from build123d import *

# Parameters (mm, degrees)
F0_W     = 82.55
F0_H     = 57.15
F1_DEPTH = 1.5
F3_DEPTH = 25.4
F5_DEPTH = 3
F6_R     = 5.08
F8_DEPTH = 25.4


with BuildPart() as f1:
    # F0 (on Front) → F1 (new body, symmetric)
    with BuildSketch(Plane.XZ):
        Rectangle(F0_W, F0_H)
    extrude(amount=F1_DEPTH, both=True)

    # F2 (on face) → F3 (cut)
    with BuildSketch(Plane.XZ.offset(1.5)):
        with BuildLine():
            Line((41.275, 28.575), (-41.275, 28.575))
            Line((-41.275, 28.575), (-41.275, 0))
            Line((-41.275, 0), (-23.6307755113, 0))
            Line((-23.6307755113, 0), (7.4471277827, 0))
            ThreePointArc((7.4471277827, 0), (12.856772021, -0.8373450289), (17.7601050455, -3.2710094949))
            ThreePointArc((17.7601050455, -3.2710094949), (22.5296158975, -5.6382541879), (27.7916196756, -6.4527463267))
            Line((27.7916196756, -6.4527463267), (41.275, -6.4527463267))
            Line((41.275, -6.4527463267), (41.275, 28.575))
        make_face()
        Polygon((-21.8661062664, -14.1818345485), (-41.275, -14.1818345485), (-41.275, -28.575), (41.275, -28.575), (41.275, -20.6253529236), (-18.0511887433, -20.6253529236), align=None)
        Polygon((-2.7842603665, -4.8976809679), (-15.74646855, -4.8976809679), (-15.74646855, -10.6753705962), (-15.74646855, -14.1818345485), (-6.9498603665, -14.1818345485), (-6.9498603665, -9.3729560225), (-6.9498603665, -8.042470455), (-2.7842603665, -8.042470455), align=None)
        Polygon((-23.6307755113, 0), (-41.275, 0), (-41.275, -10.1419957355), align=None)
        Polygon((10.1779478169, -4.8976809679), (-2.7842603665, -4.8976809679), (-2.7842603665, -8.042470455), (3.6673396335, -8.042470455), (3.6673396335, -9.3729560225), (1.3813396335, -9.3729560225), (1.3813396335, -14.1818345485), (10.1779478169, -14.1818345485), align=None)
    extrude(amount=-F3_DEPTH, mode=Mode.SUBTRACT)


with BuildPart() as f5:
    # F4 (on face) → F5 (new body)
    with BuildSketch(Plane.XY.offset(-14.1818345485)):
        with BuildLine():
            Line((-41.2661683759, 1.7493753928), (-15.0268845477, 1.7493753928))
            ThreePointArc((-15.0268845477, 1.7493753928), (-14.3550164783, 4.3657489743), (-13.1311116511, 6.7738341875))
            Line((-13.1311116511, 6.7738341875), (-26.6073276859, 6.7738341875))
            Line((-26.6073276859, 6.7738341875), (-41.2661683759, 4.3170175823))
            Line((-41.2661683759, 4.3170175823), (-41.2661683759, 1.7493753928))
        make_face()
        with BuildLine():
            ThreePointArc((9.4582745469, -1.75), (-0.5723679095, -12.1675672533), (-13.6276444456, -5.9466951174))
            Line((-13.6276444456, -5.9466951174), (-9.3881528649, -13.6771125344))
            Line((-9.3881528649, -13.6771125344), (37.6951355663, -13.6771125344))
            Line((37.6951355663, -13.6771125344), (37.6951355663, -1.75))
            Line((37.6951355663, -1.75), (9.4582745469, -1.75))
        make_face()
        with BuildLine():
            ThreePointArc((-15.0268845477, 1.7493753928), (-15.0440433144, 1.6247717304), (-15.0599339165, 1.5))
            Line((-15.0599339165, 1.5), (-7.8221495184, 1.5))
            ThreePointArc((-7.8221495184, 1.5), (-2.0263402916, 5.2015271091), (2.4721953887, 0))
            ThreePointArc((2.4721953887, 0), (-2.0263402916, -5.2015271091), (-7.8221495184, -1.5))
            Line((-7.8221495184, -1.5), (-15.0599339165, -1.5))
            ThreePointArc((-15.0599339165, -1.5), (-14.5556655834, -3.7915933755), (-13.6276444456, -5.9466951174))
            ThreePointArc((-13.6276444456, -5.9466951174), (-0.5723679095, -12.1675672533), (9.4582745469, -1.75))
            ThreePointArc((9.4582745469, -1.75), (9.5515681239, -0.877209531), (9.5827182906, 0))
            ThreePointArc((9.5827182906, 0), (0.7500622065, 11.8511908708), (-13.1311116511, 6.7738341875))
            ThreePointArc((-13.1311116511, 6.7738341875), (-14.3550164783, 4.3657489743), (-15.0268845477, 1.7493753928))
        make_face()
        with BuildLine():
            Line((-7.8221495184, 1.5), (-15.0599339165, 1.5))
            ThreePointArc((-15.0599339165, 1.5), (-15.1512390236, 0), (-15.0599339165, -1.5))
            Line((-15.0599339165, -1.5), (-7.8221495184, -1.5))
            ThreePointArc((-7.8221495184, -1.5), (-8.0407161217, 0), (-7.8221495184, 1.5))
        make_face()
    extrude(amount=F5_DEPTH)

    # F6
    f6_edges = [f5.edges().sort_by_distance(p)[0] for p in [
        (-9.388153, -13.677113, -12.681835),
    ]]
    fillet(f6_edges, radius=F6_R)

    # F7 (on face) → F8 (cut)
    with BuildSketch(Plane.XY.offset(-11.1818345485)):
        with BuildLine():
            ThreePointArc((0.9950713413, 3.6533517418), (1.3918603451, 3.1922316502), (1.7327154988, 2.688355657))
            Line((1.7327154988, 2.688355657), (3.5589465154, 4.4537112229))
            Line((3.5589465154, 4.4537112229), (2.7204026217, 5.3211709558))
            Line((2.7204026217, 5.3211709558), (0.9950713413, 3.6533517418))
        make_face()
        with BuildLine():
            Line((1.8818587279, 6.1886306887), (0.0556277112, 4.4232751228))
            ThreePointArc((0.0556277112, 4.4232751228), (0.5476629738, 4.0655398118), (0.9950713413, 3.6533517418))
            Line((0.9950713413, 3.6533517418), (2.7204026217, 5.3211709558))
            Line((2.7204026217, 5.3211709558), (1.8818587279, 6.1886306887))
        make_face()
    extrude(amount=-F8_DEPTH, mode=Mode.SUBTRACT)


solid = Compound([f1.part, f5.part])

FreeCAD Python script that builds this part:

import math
import FreeCAD as App
import Part
import Sketcher
Q = App.Units.Quantity


def edges_at(feature, points):
    """Names of the edges that pass closest to the given points."""
    edges = feature.Shape.Edges
    near = lambda p: min(range(len(edges)), key=lambda i: edges[i].distToShape(Part.Vertex(*p))[0])
    return sorted({f"Edge{near(p) + 1}" for p in points})


def add_polygon(sketch, points):
    """Adds a closed chain of lines whose ends are joined by coincident constraints."""
    first, n = sketch.GeometryCount, len(points)
    for a, b in zip(points, points[1:] + points[:1]):
        sketch.addGeometry(Part.LineSegment(App.Vector(*a, 0), App.Vector(*b, 0)), False)
    for i in range(n):
        sketch.addConstraint(Sketcher.Constraint("Coincident", first + i, 2, first + (i + 1) % n, 1))

doc = App.newDocument("Part")
body = doc.addObject("PartDesign::Body", "Body")

# Sketch on XZ plane
sketch1 = body.newObject("Sketcher::SketchObject", "Sketch")
sketch1.AttachmentSupport = (doc.getObject("XZ_Plane"), [""])
sketch1.MapMode = "FlatFace"
add_polygon(sketch1, [(-41.275, 28.575), (-41.275, -28.575), (41.275, -28.575), (41.275, 28.575)])  # lines 0-3
sketch1.addConstraint([
    Sketcher.Constraint("Vertical", 0),
    Sketcher.Constraint("Horizontal", 1),
    Sketcher.Constraint("Vertical", 2),
    Sketcher.Constraint("Horizontal", 3),
    Sketcher.Constraint("Symmetric", 0, 2, 2, 2, -1, 1),
    Sketcher.Constraint("DistanceX", 1, 1, 1, 2, Q("3.25 in")),
    Sketcher.Constraint("DistanceY", 0, 2, 0, 1, Q("2.25 in")),
])
pad1 = body.newObject("PartDesign::Pad", "Pad")
pad1.Profile = sketch1
pad1.Length = 3
pad1.Midplane = True

# Sketch on XZ plane
sketch2 = body.newObject("Sketcher::SketchObject", "Sketch001")
sketch2.AttachmentSupport = (doc.getObject("XZ_Plane"), [""])
sketch2.MapMode = "FlatFace"
sketch2.AttachmentOffset = App.Placement(App.Vector(0, 0, 1.5), App.Rotation())
sketch2.addGeometry(Part.LineSegment(App.Vector(41.275, 28.575, 0), App.Vector(-41.275, 28.575, 0)), False)  # 0
sketch2.addGeometry(Part.LineSegment(App.Vector(-41.275, 28.575, 0), App.Vector(-41.275, -10.141996, 0)), False)  # 1
sketch2.addGeometry(Part.LineSegment(App.Vector(-41.275, -10.141996, 0), App.Vector(-23.630776, 0, 0)), False)  # 2
sketch2.addGeometry(Part.LineSegment(App.Vector(-23.630776, 0, 0), App.Vector(7.447128, 0, 0)), False)  # 3
sketch2.addGeometry(Part.ArcOfCircle(Part.Circle(App.Vector(7.447128, -17.8931, 0), App.Vector(0, 0, 1), 17.8931), math.radians(54.80464), math.radians(90)), False)  # 4
sketch2.addGeometry(Part.ArcOfCircle(Part.Circle(App.Vector(27.79162, 10.952014, 0), App.Vector(0, 0, 1), 17.40476), math.radians(-125.19536), math.radians(-90)), False)  # 5
sketch2.addGeometry(Part.LineSegment(App.Vector(27.79162, -6.452746, 0), App.Vector(41.275, -6.452746, 0)), False)  # 6
sketch2.addGeometry(Part.LineSegment(App.Vector(41.275, -6.452746, 0), App.Vector(41.275, 28.575, 0)), False)  # 7
add_polygon(sketch2, [(-21.866106, -14.181835), (-41.275, -14.181835), (-41.275, -28.575), (41.275, -28.575), (41.275, -20.625353), (-18.051189, -20.625353)])  # lines 8-13
add_polygon(sketch2, [(-15.746469, -4.897681), (-15.746469, -14.181835), (-6.94986, -14.181835), (-6.94986, -8.04247), (3.66734, -8.04247), (3.66734, -9.372956), (1.38134, -9.372956), (1.38134, -14.181835), (10.177948, -14.181835), (10.177948, -4.897681)])  # lines 14-23
sketch2.addConstraint([
    Sketcher.Constraint("Coincident", 0, 2, 1, 1),
    Sketcher.Constraint("Coincident", 1, 2, 2, 1),
    Sketcher.Constraint("Coincident", 2, 2, 3, 1),
    Sketcher.Constraint("Tangent", 3, 2, 4, 2),
    Sketcher.Constraint("Tangent", 4, 1, 5, 1),
    Sketcher.Constraint("Tangent", 5, 2, 6, 1),
    Sketcher.Constraint("Coincident", 6, 2, 7, 1),
    Sketcher.Constraint("Coincident", 7, 2, 0, 1),
    Sketcher.Constraint("Horizontal", 0),
    Sketcher.Constraint("Vertical", 1),
    Sketcher.Constraint("Horizontal", 3),
    Sketcher.Constraint("Horizontal", 6),
    Sketcher.Constraint("Vertical", 7),
    Sketcher.Constraint("Horizontal", 8),
    Sketcher.Constraint("Vertical", 9),
    Sketcher.Constraint("Horizontal", 10),
    Sketcher.Constraint("Vertical", 11),
    Sketcher.Constraint("Horizontal", 12),
    Sketcher.Constraint("Vertical", 14),
    Sketcher.Constraint("Horizontal", 15),
    Sketcher.Constraint("Vertical", 16),
    Sketcher.Constraint("Horizontal", 17),
    Sketcher.Constraint("Vertical", 18),
    Sketcher.Constraint("Horizontal", 19),
    Sketcher.Constraint("Vertical", 20),
    Sketcher.Constraint("Horizontal", 21),
    Sketcher.Constraint("Vertical", 22),
    Sketcher.Constraint("Horizontal", 23),
    Sketcher.Constraint("Symmetric", 7, 2, 9, 2, -1, 1),
    Sketcher.Constraint("PointOnObject", 2, 2, -1),
    Sketcher.Constraint("Horizontal", 13, 2, 14, 2),
    Sketcher.Constraint("Horizontal", 15, 2, 20, 2),
    Sketcher.Constraint("Vertical", 1, 2, 8, 2),
    Sketcher.Constraint("Vertical", 7, 2, 10, 2),
    Sketcher.Constraint("Equal", 15, 21),
    Sketcher.Constraint("DistanceX", 0, 2, 0, 1, Q("3.25 in")),
    Sketcher.Constraint("DistanceX", 19, 2, 19, 1, Q("0.09 in")),
    Sketcher.Constraint("DistanceX", 17, 1, 17, 2, Q("0.418 in")),
    Sketcher.Constraint("Radius", 4, 17.8931),
    Sketcher.Constraint("DistanceY", -1, 1, 0, 2, Q("1.125 in")),
    Sketcher.Constraint("Radius", 5, 17.40476),
    Sketcher.Constraint("DistanceX", 6, 1, 6, 2, 13.48338),
    Sketcher.Constraint("DistanceX", 12, 2, 12, 1, 59.326189),
    Sketcher.Constraint("DistanceX", 15, 1, 15, 2, 8.796608),
    Sketcher.Constraint("DistanceY", 20, 2, 20, 1, 4.808879),
    Sketcher.Constraint("Distance", 2, 20.351382),
    Sketcher.Constraint("Distance", 13, 7.488159),
    Sketcher.Constraint("DistanceX", 3, 1, 3, 2, 31.077903),
    Sketcher.Constraint("DistanceX", 8, 2, 8, 1, 19.408894),
    Sketcher.Constraint("DistanceY", 1, 2, 1, 1, 38.716996),
    Sketcher.Constraint("DistanceY", 9, 2, 9, 1, 14.393165),
    Sketcher.Constraint("DistanceY", 14, 2, 14, 1, 9.284154),
    Sketcher.Constraint("DistanceY", 16, 1, 16, 2, 6.139364),
    Sketcher.Constraint("DistanceX", 14, 2, -1, 1, 15.746469),
])
pocket1 = body.newObject("PartDesign::Pocket", "Pocket")
pocket1.Profile = sketch2
pocket1.Length = Q("1 in")
body2 = doc.addObject("PartDesign::Body", "Body001")

# Sketch on XY plane
sketch3 = body2.newObject("Sketcher::SketchObject", "Sketch002")
sketch3.AttachmentSupport = (doc.getObject("XY_Plane001"), [""])
sketch3.MapMode = "FlatFace"
sketch3.AttachmentOffset = App.Placement(App.Vector(0, 0, -14.181835), App.Rotation())
sketch3.addGeometry([
    Part.LineSegment(App.Vector(-41.266168, 1.749375, 0), App.Vector(-15.026885, 1.749375, 0)),  # 0
    Part.ArcOfCircle(Part.Circle(App.Vector(-2.78426, 0, 0), App.Vector(0, 0, 1), 12.366979), math.radians(171.86793), math.radians(173.033399)),  # 1
    Part.ArcOfCircle(Part.Circle(App.Vector(-2.78426, 0, 0), App.Vector(0, 0, 1), 12.366979), math.radians(173.033399), math.radians(186.966601)),  # 2
    Part.ArcOfCircle(Part.Circle(App.Vector(-2.78426, 0, 0), App.Vector(0, 0, 1), 12.366979), math.radians(-173.033399), math.radians(-151.258892)),  # 3
    Part.LineSegment(App.Vector(-13.627644, -5.946695, 0), App.Vector(-9.388153, -13.677113, 0)),  # 4
    Part.LineSegment(App.Vector(-9.388153, -13.677113, 0), App.Vector(37.695136, -13.677113, 0)),  # 5
    Part.LineSegment(App.Vector(37.695136, -13.677113, 0), App.Vector(37.695136, -1.75, 0)),  # 6
    Part.LineSegment(App.Vector(37.695136, -1.75, 0), App.Vector(9.458275, -1.75, 0)),  # 7
    Part.ArcOfCircle(Part.Circle(App.Vector(-2.78426, 0, 0), App.Vector(0, 0, 1), 12.366979), math.radians(-8.134993), math.radians(0)),  # 8
    Part.ArcOfCircle(Part.Circle(App.Vector(-2.78426, 0, 0), App.Vector(0, 0, 1), 12.366979), math.radians(0), math.radians(146.788198)),  # 9
    Part.LineSegment(App.Vector(-13.131112, 6.773834, 0), App.Vector(-26.607328, 6.773834, 0)),  # 10
    Part.LineSegment(App.Vector(-26.607328, 6.773834, 0), App.Vector(-41.266168, 4.317018, 0)),  # 11
    Part.LineSegment(App.Vector(-41.266168, 4.317018, 0), App.Vector(-41.266168, 1.749375, 0)),  # 12
    Part.ArcOfCircle(Part.Circle(App.Vector(-2.78426, 0, 0), App.Vector(0, 0, 1), 5.256456), math.radians(0), math.radians(163.419429)),  # 13
    Part.ArcOfCircle(Part.Circle(App.Vector(-2.78426, 0, 0), App.Vector(0, 0, 1), 5.256456), math.radians(-163.419429), math.radians(0)),  # 14
    Part.ArcOfCircle(Part.Circle(App.Vector(-2.78426, 0, 0), App.Vector(0, 0, 1), 5.256456), math.radians(163.419429), math.radians(196.580571)),  # 15
], False)
sketch3.addConstraint([
    Sketcher.Constraint("Coincident", 0, 2, 1, 1),
    Sketcher.Constraint("Tangent", 1, 2, 2, 1),
    Sketcher.Constraint("Tangent", 2, 2, 3, 1),
    Sketcher.Constraint("Tangent", 3, 2, 4, 1),
    Sketcher.Constraint("Coincident", 4, 2, 5, 1),
    Sketcher.Constraint("Coincident", 5, 2, 6, 1),
    Sketcher.Constraint("Coincident", 6, 2, 7, 1),
    Sketcher.Constraint("Coincident", 7, 2, 8, 1),
    Sketcher.Constraint("Tangent", 8, 2, 9, 1),
    Sketcher.Constraint("Coincident", 9, 2, 10, 1),
    Sketcher.Constraint("Coincident", 10, 2, 11, 1),
    Sketcher.Constraint("Coincident", 11, 2, 12, 1),
    Sketcher.Constraint("Coincident", 12, 2, 0, 1),
    Sketcher.Constraint("Tangent", 13, 1, 14, 2),
    Sketcher.Constraint("Tangent", 14, 1, 15, 2),
    Sketcher.Constraint("Tangent", 15, 1, 13, 2),
    Sketcher.Constraint("Horizontal", 0),
    Sketcher.Constraint("Horizontal", 5),
    Sketcher.Constraint("Vertical", 6),
    Sketcher.Constraint("Horizontal", 7),
    Sketcher.Constraint("Horizontal", 10),
    Sketcher.Constraint("Vertical", 12),
    Sketcher.Constraint("Coincident", 3, 3, 1, 3),
    Sketcher.Constraint("Coincident", 8, 3, 1, 3),
    Sketcher.Constraint("Coincident", 13, 3, 1, 3),
    Sketcher.Constraint("Equal", 3, 8),
    Sketcher.Constraint("Equal", 8, 9),
    Sketcher.Constraint("Symmetric", 1, 2, 2, 2, -1),
    Sketcher.Constraint("PointOnObject", 8, 2, -1),
    Sketcher.Constraint("PointOnObject", 13, 1, -1),
    Sketcher.Constraint("Horizontal", 2, 2, 14, 1),
    Sketcher.Constraint("Horizontal", 1, 2, 15, 1),
    Sketcher.Constraint("Radius", 1, 12.366979),
    Sketcher.Constraint("Radius", 13, 5.256456),
    Sketcher.Constraint("DistanceX", 5, 1, 5, 2, 47.083288),
    Sketcher.Constraint("DistanceX", 7, 2, 7, 1, 28.236861),
    Sketcher.Constraint("DistanceY", -1, 1, 1, 2, 1.5),
    Sketcher.Constraint("DistanceY", 6, 2, -1, 1, 1.75),
    Sketcher.Constraint("Distance", 4, 8.816612),
    Sketcher.Constraint("DistanceX", 0, 1, 0, 2, 26.239284),
    Sketcher.Constraint("DistanceX", 10, 2, 10, 1, 13.476216),
    Sketcher.Constraint("DistanceY", 12, 2, 12, 1, 2.567642),
    Sketcher.Constraint("DistanceX", 1, 3, -1, 1, 2.78426),
    Sketcher.Constraint("DistanceX", 9, 2, -1, 1, 13.131112),
    Sketcher.Constraint("DistanceX", 11, 2, -1, 1, 41.266168),
])
pad2 = body2.newObject("PartDesign::Pad", "Pad001")
pad2.Profile = sketch3
pad2.Length = 3
doc.recompute()

fillet = body2.newObject("PartDesign::Fillet", "Fillet")
fillet.Base = (pad2, edges_at(pad2, [(-9.388, -13.677, -12.682)]))
fillet.Radius = Q("0.2 in")

# Sketch on XY plane
sketch4 = body2.newObject("Sketcher::SketchObject", "Sketch003")
sketch4.AttachmentSupport = (doc.getObject("XY_Plane001"), [""])
sketch4.MapMode = "FlatFace"
sketch4.AttachmentOffset = App.Placement(App.Vector(0, 0, -11.181835), App.Rotation())
sketch4.addGeometry([
    Part.LineSegment(App.Vector(1.732715, 2.688356, 0), App.Vector(3.558947, 4.453711, 0)),  # 0
    Part.LineSegment(App.Vector(3.558947, 4.453711, 0), App.Vector(2.720403, 5.321171, 0)),  # 1
    Part.LineSegment(App.Vector(2.720403, 5.321171, 0), App.Vector(1.881859, 6.188631, 0)),  # 2
    Part.LineSegment(App.Vector(1.881859, 6.188631, 0), App.Vector(0.055628, 4.423275, 0)),  # 3
    Part.ArcOfCircle(Part.Circle(App.Vector(-2.78426, 0, 0), App.Vector(0, 0, 1), 5.256456), math.radians(30.759718), math.radians(57.298203)),  # 4
], False)
sketch4.addConstraint([
    Sketcher.Constraint("Coincident", 0, 2, 1, 1),
    Sketcher.Constraint("Coincident", 1, 2, 2, 1),
    Sketcher.Constraint("Coincident", 2, 2, 3, 1),
    Sketcher.Constraint("Coincident", 3, 2, 4, 2),
    Sketcher.Constraint("Coincident", 4, 1, 0, 1),
    Sketcher.Constraint("PointOnObject", 4, 3, -1),
    Sketcher.Constraint("Perpendicular", 0, 1),
    Sketcher.Constraint("Parallel", 1, 2),
    Sketcher.Constraint("Perpendicular", 2, 3),
    Sketcher.Constraint("Equal", 1, 2),
    Sketcher.Constraint("Equal", 0, 3),
    Sketcher.Constraint("Distance", 0, Q("0.1 in")),
    Sketcher.Constraint("Distance", 1, Q("0.0475 in")),
    Sketcher.Constraint("Radius", 4, 5.256456),
    Sketcher.Constraint("DistanceX", 4, 3, -1, 1, 2.78426),
    Sketcher.Constraint("DistanceY", -1, 1, 0, 2, 4.453711),
])
pocket2 = body2.newObject("PartDesign::Pocket", "Pocket001")
pocket2.Profile = sketch4
pocket2.Length = Q("1 in")

doc.recompute()
